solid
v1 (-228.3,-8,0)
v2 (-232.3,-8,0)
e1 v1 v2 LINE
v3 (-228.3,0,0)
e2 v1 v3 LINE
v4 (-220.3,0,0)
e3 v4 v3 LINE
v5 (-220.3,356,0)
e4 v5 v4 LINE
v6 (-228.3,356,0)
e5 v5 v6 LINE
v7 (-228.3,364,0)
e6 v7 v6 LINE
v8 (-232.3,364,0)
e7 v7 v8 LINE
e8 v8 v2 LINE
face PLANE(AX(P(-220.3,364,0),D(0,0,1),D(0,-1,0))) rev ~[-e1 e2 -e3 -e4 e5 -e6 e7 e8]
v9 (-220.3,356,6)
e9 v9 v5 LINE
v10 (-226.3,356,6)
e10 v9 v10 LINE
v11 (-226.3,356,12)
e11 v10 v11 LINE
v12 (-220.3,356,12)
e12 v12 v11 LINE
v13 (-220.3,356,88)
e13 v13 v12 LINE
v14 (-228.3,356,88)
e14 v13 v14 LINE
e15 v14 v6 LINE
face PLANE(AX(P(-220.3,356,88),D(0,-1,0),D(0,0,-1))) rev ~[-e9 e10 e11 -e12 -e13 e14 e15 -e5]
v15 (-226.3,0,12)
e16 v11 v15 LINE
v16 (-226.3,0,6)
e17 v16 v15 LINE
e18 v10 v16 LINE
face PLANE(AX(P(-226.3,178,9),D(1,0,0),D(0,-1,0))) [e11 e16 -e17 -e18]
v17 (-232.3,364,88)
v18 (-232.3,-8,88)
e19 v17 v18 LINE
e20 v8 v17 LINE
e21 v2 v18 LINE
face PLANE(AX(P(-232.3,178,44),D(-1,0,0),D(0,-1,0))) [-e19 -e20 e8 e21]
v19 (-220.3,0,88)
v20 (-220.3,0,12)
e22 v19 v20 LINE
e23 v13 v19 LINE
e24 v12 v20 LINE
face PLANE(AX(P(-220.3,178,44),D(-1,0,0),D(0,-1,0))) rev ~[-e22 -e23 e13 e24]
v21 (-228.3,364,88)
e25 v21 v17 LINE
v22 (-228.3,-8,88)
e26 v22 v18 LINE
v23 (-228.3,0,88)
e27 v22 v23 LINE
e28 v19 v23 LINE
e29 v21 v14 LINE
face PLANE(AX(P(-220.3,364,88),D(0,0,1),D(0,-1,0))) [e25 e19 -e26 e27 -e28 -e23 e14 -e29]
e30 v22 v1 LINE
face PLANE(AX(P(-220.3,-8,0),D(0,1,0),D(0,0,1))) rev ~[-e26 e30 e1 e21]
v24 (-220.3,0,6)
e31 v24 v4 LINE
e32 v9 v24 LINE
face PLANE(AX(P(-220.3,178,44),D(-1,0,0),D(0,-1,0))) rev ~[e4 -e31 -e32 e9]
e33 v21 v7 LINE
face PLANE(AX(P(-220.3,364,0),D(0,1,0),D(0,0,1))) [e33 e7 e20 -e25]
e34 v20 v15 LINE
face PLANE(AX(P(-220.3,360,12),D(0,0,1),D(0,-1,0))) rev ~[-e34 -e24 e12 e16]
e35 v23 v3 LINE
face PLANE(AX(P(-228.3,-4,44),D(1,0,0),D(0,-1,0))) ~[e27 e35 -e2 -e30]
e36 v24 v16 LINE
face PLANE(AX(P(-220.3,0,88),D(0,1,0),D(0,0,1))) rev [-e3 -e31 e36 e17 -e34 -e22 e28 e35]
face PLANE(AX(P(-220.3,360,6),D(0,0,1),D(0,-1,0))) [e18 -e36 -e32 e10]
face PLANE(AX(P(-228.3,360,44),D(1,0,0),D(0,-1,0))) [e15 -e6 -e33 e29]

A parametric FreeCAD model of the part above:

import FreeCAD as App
import Part
import Sketcher

V = App.Vector


def add_polygon(sketch, points):
    """Adds a closed chain of lines whose ends are joined by coincident constraints."""
    first, n = sketch.GeometryCount, len(points)
    for a, b in zip(points, points[1:] + points[:1]):
        sketch.addGeometry(Part.LineSegment(App.Vector(*a, 0), App.Vector(*b, 0)), False)
    for i in range(n):
        sketch.addConstraint(Sketcher.Constraint("Coincident", first + i, 2, first + (i + 1) % n, 1))

doc = App.newDocument("Part")
params = doc.addObject("Spreadsheet::Sheet", "Params")
for row, (alias, value) in enumerate([
    ("sketch1_width", "372 mm"),
    ("sketch1_height", "88 mm"),
    ("pad1_length", "12 mm"),
    ("sketch2_width", "8 mm"),
    ("sketch2_height", "88 mm"),
    ("pocket1_length", "8 mm"),
    ("sketch3_width", "364 mm"),
    ("sketch3_height", "6 mm"),
    ("pocket2_length", "6 mm"),
], start=1):
    params.set(f"A{row}", alias)
    params.set(f"B{row}", "=" + value)
    params.setAlias(f"B{row}", alias)

body = doc.addObject("PartDesign::Body", "Body")

# Sketch on XY plane
sketch1 = body.newObject("Sketcher::SketchObject", "Sketch")
sketch1.AttachmentSupport = (doc.getObject("XY_Plane"), [""])
sketch1.MapMode = "FlatFace"
add_polygon(sketch1, [(-186, 88), (-186, 0), (186, 0), (186, 88)])  # lines 0-3
sketch1.addConstraint([
    Sketcher.Constraint("Vertical", 0),
    Sketcher.Constraint("Horizontal", 1),
    Sketcher.Constraint("Vertical", 2),
    Sketcher.Constraint("Horizontal", 3),
    Sketcher.Constraint("Symmetric", 0, 2, 1, 2, -1, 1),
    Sketcher.Constraint("DistanceX", 1, 1, 1, 2, 372.0),
    Sketcher.Constraint("DistanceY", 0, 2, 0, 1, 88.0),
])
sketch1.setExpression("Constraints[9]", "Params.sketch1_width")
sketch1.setExpression("Constraints[10]", "Params.sketch1_height")
pad1 = body.newObject("PartDesign::Pad", "Pad")
pad1.Profile = sketch1
pad1.setExpression("Length", "Params.pad1_length")

# Sketch on XY plane
sketch2 = body.newObject("Sketcher::SketchObject", "Sketch001")
sketch2.AttachmentSupport = (doc.getObject("XY_Plane"), [""])
sketch2.MapMode = "FlatFace"
add_polygon(sketch2, [(-186, 0), (-186, 88), (-178, 88), (-178, 0)])  # lines 0-3
sketch2.addConstraint([
    Sketcher.Constraint("Vertical", 0),
    Sketcher.Constraint("Horizontal", 1),
    Sketcher.Constraint("Vertical", 2),
    Sketcher.Constraint("Horizontal", 3),
    Sketcher.Constraint("PointOnObject", 2, 2, -1),
    Sketcher.Constraint("DistanceX", 1, 1, 1, 2, 8.0),
    Sketcher.Constraint("DistanceY", 0, 1, 0, 2, 88.0),
    Sketcher.Constraint("DistanceX", 0, 2, -1, 1, 186.0),
])
sketch2.setExpression("Constraints[9]", "Params.sketch2_width")
sketch2.setExpression("Constraints[10]", "Params.sketch2_height")
pocket1 = body.newObject("PartDesign::Pocket", "Pocket")
pocket1.Profile = sketch2
pocket1.setExpression("Length", "Params.pocket1_length")
pocket1.Reversed = True
doc.recompute()

mirrored = body.newObject("PartDesign::Mirrored", "Mirrored")
mirrored.Originals = [pocket1]
mirrored.MirrorPlane = (doc.getObject("YZ_Plane"), [""])
body.Tip = mirrored

# Sketch on XY plane
sketch3 = body.newObject("Sketcher::SketchObject", "Sketch002")
sketch3.AttachmentSupport = (doc.getObject("XY_Plane"), [""])
sketch3.MapMode = "FlatFace"
add_polygon(sketch3, [(-182, 6), (-182, 12), (182, 12), (182, 6)])  # lines 0-3
sketch3.addConstraint([
    Sketcher.Constraint("Vertical", 0),
    Sketcher.Constraint("Horizontal", 1),
    Sketcher.Constraint("Vertical", 2),
    Sketcher.Constraint("Horizontal", 3),
    Sketcher.Constraint("DistanceX", 1, 1, 1, 2, 364.0),
    Sketcher.Constraint("DistanceY", 0, 1, 0, 2, 6.0),
    Sketcher.Constraint("DistanceX", 0, 2, -1, 1, 182.0),
    Sketcher.Constraint("DistanceY", -1, 1, 0, 2, 12.0),
])
sketch3.setExpression("Constraints[8]", "Params.sketch3_width")
sketch3.setExpression("Constraints[9]", "Params.sketch3_height")
pocket2 = body.newObject("PartDesign::Pocket", "Pocket001")
pocket2.Profile = sketch3
pocket2.setExpression("Length", "Params.pocket2_length")
pocket2.Reversed = True
body2 = doc.addObject("PartDesign::Body", "Body001")
doc.recompute()

body.Placement = App.Placement(V(0, 0, 0), App.Rotation(V(1, 0, 0), 90))
boolean = body2.newObject("PartDesign::Boolean", "Boolean")
boolean.Type = "Fuse"
boolean.addObjects([body])
body3 = doc.addObject("PartDesign::Body", "Body002")
doc.recompute()

body2.Placement = App.Placement(V(-220.3, 178, 0), App.Rotation(V(0, 0, 1), 270))
boolean2 = body3.newObject("PartDesign::Boolean", "Boolean001")
boolean2.Type = "Fuse"
boolean2.addObjects([body2])

doc.recompute()
